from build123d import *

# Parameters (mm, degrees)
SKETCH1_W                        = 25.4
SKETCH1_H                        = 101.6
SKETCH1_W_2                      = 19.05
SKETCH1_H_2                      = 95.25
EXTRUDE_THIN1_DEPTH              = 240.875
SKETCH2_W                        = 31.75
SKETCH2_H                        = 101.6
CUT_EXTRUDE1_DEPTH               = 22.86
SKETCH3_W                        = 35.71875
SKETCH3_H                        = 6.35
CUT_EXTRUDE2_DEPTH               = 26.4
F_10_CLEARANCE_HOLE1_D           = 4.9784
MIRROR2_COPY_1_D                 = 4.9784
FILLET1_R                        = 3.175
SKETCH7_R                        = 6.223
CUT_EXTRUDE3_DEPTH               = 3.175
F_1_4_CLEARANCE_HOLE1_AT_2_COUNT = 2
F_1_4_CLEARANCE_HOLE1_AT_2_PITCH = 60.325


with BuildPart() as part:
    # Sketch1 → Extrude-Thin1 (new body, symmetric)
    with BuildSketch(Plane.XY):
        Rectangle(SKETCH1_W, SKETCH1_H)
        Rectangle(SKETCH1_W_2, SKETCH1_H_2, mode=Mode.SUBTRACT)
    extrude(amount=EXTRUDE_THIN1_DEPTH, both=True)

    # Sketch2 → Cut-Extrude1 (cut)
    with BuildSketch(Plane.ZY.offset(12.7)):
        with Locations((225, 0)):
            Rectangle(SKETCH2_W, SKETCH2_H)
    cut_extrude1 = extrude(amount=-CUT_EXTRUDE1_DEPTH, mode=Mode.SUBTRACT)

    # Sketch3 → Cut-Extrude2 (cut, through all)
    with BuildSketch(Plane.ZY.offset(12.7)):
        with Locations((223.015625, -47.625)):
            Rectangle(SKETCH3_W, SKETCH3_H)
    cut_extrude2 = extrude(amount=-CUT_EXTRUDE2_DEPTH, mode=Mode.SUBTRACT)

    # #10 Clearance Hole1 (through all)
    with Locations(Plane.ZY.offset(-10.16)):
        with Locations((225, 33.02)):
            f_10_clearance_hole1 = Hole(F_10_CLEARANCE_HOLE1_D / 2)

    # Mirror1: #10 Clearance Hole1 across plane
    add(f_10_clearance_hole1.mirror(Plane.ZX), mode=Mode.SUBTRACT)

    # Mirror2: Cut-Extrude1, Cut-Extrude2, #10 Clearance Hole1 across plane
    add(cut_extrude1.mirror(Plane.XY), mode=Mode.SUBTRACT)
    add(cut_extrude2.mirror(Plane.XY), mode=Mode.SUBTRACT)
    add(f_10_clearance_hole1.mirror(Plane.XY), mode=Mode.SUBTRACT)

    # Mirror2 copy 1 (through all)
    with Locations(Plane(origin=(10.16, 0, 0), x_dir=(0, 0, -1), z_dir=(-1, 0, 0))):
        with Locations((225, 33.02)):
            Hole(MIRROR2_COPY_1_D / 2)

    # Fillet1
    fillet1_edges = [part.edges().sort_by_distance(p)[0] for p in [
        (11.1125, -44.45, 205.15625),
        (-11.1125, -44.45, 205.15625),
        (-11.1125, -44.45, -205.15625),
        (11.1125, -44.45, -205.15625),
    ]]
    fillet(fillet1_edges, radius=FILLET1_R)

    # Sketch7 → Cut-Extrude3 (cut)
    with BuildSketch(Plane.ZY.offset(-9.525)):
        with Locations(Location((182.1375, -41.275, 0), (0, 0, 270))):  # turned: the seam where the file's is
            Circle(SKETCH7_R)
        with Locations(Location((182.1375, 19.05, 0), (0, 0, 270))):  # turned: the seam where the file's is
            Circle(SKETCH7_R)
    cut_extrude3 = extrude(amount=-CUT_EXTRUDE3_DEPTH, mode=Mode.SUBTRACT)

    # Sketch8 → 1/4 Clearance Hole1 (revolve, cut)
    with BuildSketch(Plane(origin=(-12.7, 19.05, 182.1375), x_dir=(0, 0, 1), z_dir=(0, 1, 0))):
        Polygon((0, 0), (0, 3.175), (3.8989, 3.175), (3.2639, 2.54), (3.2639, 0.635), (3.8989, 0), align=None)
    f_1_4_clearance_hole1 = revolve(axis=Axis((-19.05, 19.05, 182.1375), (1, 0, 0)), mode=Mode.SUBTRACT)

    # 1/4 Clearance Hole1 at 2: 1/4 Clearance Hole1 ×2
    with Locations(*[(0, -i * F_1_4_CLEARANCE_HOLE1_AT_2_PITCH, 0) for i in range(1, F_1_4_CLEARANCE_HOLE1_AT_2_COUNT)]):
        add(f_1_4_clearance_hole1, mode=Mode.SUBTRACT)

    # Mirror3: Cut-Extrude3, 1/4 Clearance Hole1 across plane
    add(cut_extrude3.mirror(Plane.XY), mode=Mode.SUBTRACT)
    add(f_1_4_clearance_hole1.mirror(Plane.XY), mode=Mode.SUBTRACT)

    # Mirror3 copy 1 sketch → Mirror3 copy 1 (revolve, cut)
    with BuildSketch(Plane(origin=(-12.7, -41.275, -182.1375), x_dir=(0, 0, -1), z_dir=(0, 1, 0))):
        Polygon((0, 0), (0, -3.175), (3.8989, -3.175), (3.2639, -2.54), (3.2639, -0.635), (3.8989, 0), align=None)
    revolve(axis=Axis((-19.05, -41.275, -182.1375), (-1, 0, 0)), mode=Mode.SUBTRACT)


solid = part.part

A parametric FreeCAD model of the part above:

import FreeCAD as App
import Part
import Sketcher
from FreeCAD import Vector
Q = App.Units.Quantity


def edges_at(feature, points):
    """Names of the edges that pass closest to the given points."""
    edges = feature.Shape.Edges
    near = lambda p: min(range(len(edges)), key=lambda i: edges[i].distToShape(Part.Vertex(*p))[0])
    return sorted({f"Edge{near(p) + 1}" for p in points})


def add_polygon(sketch, points):
    """Adds a closed chain of lines whose ends are joined by coincident constraints."""
    first, n = sketch.GeometryCount, len(points)
    for a, b in zip(points, points[1:] + points[:1]):
        sketch.addGeometry(Part.LineSegment(App.Vector(*a, 0), App.Vector(*b, 0)), False)
    for i in range(n):
        sketch.addConstraint(Sketcher.Constraint("Coincident", first + i, 2, first + (i + 1) % n, 1))

doc = App.newDocument("Part")
params = doc.addObject("Spreadsheet::Sheet", "Params")
for row, (alias, value) in enumerate([
    ("sketch1_width", "1 in"),
    ("sketch1_height", "4 in"),
    ("sketch1_width2", "0.75 in"),
    ("sketch1_height2", "3.75 in"),
    ("pad1_length", "481.75 mm"),
    ("sketch2_width", "4 in"),
    ("sketch2_height", "1.25 in"),
    ("pocket1_length", "0.9 in"),
    ("sketch3_width", "0.25 in"),
    ("sketch3_height", "1.40625 in"),
    ("sketch4_diameter", "0.196 in"),
    ("hole_diameter", "0.196 in"),
    ("sketch5_diameter", "0.196 in"),
    ("hole2_diameter", "0.196 in"),
    ("fillet_radius", "0.125 in"),
    ("sketch6_diameter", "0.49 in"),
    ("pocket3_length", "0.125 in"),
    ("sketch7_width", "0.125 in"),
    ("groove_angle", "360 deg"),
    ("linearpattern_pitch", "2.375 in"),
    ("sketch8_width", "0.125 in"),
    ("groove2_angle", "360 deg"),
], start=1):
    params.set(f"A{row}", alias)
    params.set(f"B{row}", "=" + value)
    params.setAlias(f"B{row}", alias)

body = doc.addObject("PartDesign::Body", "Body")

sketch1 = doc.addObject("Sketcher::SketchObject", "Sketch")
body.addObject(sketch1)
sketch1.AttachmentSupport = (doc.XY_Plane, [""])
sketch1.MapMode = "FlatFace"
add_polygon(sketch1, [(-13, 51), (-13, -51), (13, -51), (13, 51)])
add_polygon(sketch1, [(10, -48), (-10, -48), (-10, 48), (10, 48)])
sketch1.addConstraint(Sketcher.Constraint("Vertical", 0))
sketch1.addConstraint(Sketcher.Constraint("Horizontal", 1))
sketch1.addConstraint(Sketcher.Constraint("Vertical", 2))
sketch1.addConstraint(Sketcher.Constraint("Horizontal", 3))
sketch1.addConstraint(Sketcher.Constraint("Horizontal", 4))
sketch1.addConstraint(Sketcher.Constraint("Vertical", 5))
sketch1.addConstraint(Sketcher.Constraint("Horizontal", 6))
sketch1.addConstraint(Sketcher.Constraint("Vertical", 7))
sketch1.addConstraint(Sketcher.Constraint("Symmetric", 0, 2, 2, 2, -1, 1))
sketch1.addConstraint(Sketcher.Constraint("Symmetric", 4, 2, 6, 2, -1, 1))
sketch1.addConstraint(Sketcher.Constraint("DistanceX", 1, 1, 1, 2, Q("1 in")))
sketch1.addConstraint(Sketcher.Constraint("DistanceY", 0, 2, 0, 1, Q("4 in")))
sketch1.addConstraint(Sketcher.Constraint("DistanceX", 4, 2, 4, 1, Q("0.75 in")))
sketch1.addConstraint(Sketcher.Constraint("DistanceY", 5, 1, 5, 2, Q("3.75 in")))
sketch1.setExpression("Constraints[18]", "Params.sketch1_width")
sketch1.setExpression("Constraints[19]", "Params.sketch1_height")
sketch1.setExpression("Constraints[20]", "Params.sketch1_width2")
sketch1.setExpression("Constraints[21]", "Params.sketch1_height2")
pad1 = doc.addObject("PartDesign::Pad", "Pad")
body.addObject(pad1)
pad1.Profile = sketch1
pad1.setExpression("Length", "Params.pad1_length")
pad1.Midplane = True

sketch2 = doc.addObject("Sketcher::SketchObject", "Sketch001")
body.addObject(sketch2)
sketch2.AttachmentSupport = (doc.YZ_Plane, [""])
sketch2.MapMode = "FlatFace"
sketch2.AttachmentOffset = App.Placement(Vector(0, 0, -0.5 * 25.4), App.Rotation())
add_polygon(sketch2, [(51, 209), (-51, 209), (-51, 241), (51, 241)])
sketch2.addConstraint(Sketcher.Constraint("Horizontal", 0))
sketch2.addConstraint(Sketcher.Constraint("Vertical", 1))
sketch2.addConstraint(Sketcher.Constraint("Horizontal", 2))
sketch2.addConstraint(Sketcher.Constraint("Vertical", 3))
sketch2.addConstraint(Sketcher.Constraint("DistanceX", 0, 2, 0, 1, Q("4 in")))
sketch2.addConstraint(Sketcher.Constraint("DistanceX", 0, 2, -1, 1, Q("2 in")))
sketch2.addConstraint(Sketcher.Constraint("DistanceY", 1, 1, 1, 2, Q("1.25 in")))
sketch2.addConstraint(Sketcher.Constraint("DistanceY", -1, 1, 0, 2, 209.125))
sketch2.setExpression("Constraints[8]", "Params.sketch2_width")
sketch2.setExpression("Constraints[10]", "Params.sketch2_height")
pocket1 = doc.addObject("PartDesign::Pocket", "Pocket")
body.addObject(pocket1)
pocket1.Profile = sketch2
pocket1.setExpression("Length", "Params.pocket1_length")
pocket1.Reversed = True

sketch3 = doc.addObject("Sketcher::SketchObject", "Sketch002")
body.addObject(sketch3)
sketch3.AttachmentSupport = (doc.YZ_Plane, [""])
sketch3.MapMode = "FlatFace"
sketch3.AttachmentOffset = App.Placement(Vector(0, 0, -0.5 * 25.4), App.Rotation())
add_polygon(sketch3, [(-44, 205), (-51, 205), (-51, 241), (-44, 241)])
sketch3.addConstraint(Sketcher.Constraint("Horizontal", 0))
sketch3.addConstraint(Sketcher.Constraint("Vertical", 1))
sketch3.addConstraint(Sketcher.Constraint("Horizontal", 2))
sketch3.addConstraint(Sketcher.Constraint("Vertical", 3))
sketch3.addConstraint(Sketcher.Constraint("DistanceX", 0, 2, -1, 1, Q("2 in")))
sketch3.addConstraint(Sketcher.Constraint("DistanceX", 0, 2, 0, 1, Q("0.25 in")))
sketch3.addConstraint(Sketcher.Constraint("DistanceY", 1, 1, 1, 2, Q("1.40625 in")))
sketch3.addConstraint(Sketcher.Constraint("DistanceY", -1, 1, 1, 2, 240.875))
sketch3.setExpression("Constraints[9]", "Params.sketch3_width")
sketch3.setExpression("Constraints[10]", "Params.sketch3_height")
pocket2 = doc.addObject("PartDesign::Pocket", "Pocket001")
body.addObject(pocket2)
pocket2.Profile = sketch3
pocket2.Type = "ThroughAll"
pocket2.Reversed = True

sketch4 = doc.addObject("Sketcher::SketchObject", "Sketch003")
body.addObject(sketch4)
sketch4.AttachmentSupport = (doc.YZ_Plane, [""])
sketch4.MapMode = "FlatFace"
sketch4.AttachmentOffset = App.Placement(Vector(0, 0, 0.4 * 25.4), App.Rotation())
sketch4.addGeometry(Part.Circle(Vector(33, 225, 0), Vector(0, 0, 1), 2.5), False)
sketch4.addConstraint(Sketcher.Constraint("Diameter", 0, Q("0.196 in")))
sketch4.addConstraint(Sketcher.Constraint("DistanceX", -1, 1, 0, 3, Q("1.3 in")))
sketch4.addConstraint(Sketcher.Constraint("DistanceY", -1, 1, 0, 3, 225.0))
sketch4.setExpression("Constraints[0]", "Params.sketch4_diameter")
doc.recompute()
hole = doc.addObject("PartDesign::Hole", "Hole")
body.addObject(hole)
hole.Profile = sketch4
hole.ThreadType = "None"
hole.setExpression("Diameter", "Params.hole_diameter")
hole.DepthType = "ThroughAll"
hole.Reversed = True
doc.recompute()

mirrored = doc.addObject("PartDesign::Mirrored", "Mirrored")
body.addObject(mirrored)
mirrored.Originals = [hole]
mirrored.MirrorPlane = (doc.XZ_Plane, [""])
body.Tip = mirrored
doc.recompute()

mirrored2 = doc.addObject("PartDesign::Mirrored", "Mirrored001")
body.addObject(mirrored2)
mirrored2.Originals = [pocket1, pocket2, hole]
mirrored2.MirrorPlane = (doc.XY_Plane, [""])
body.Tip = mirrored2

sketch5 = doc.addObject("Sketcher::SketchObject", "Sketch004")
body.addObject(sketch5)
sketch5.AttachmentSupport = (doc.YZ_Plane, [""])
sketch5.MapMode = "FlatFace"
sketch5.AttachmentOffset = App.Placement(Vector(0, 0, 0.4 * 25.4), App.Rotation())
sketch5.addGeometry(Part.Circle(Vector(-33, -225, 0), Vector(0, 0, 1), 2.5), False)
sketch5.addConstraint(Sketcher.Constraint("Diameter", 0, Q("0.196 in")))
sketch5.addConstraint(Sketcher.Constraint("DistanceX", 0, 3, -1, 1, Q("1.3 in")))
sketch5.addConstraint(Sketcher.Constraint("DistanceY", 0, 3, -1, 1, 225.0))
sketch5.setExpression("Constraints[0]", "Params.sketch5_diameter")
doc.recompute()
hole2 = doc.addObject("PartDesign::Hole", "Hole001")
body.addObject(hole2)
hole2.Profile = sketch5
hole2.ThreadType = "None"
hole2.setExpression("Diameter", "Params.hole2_diameter")
hole2.DepthType = "ThroughAll"
hole2.Reversed = True
doc.recompute()

fillet = doc.addObject("PartDesign::Fillet", "Fillet")
body.addObject(fillet)
fillet.Base = (hole2, edges_at(hole2, [
    (11.113, -44.45, 205.156),
    (-11.113, -44.45, 205.156),
    (-11.113, -44.45, -205.156),
    (11.113, -44.45, -205.156),
]))
fillet.setExpression("Radius", "Params.fillet_radius")

sketch6 = doc.addObject("Sketcher::SketchObject", "Sketch005")
body.addObject(sketch6)
sketch6.AttachmentSupport = (doc.YZ_Plane, [""])
sketch6.MapMode = "FlatFace"
sketch6.AttachmentOffset = App.Placement(Vector(0, 0, 0.375 * 25.4), App.Rotation())
sketch6.addGeometry(Part.Circle(Vector(-41, 182, 0), Vector(0, 0, 1), 6), False)
sketch6.addGeometry(Part.Circle(Vector(19, 182, 0), Vector(0, 0, 1), 6), False)
sketch6.addConstraint(Sketcher.Constraint("Equal", 0, 1))
sketch6.addConstraint(Sketcher.Constraint("Horizontal", 0, 3, 1, 3))
sketch6.addConstraint(Sketcher.Constraint("Diameter", 0, Q("0.49 in")))
sketch6.addConstraint(Sketcher.Constraint("DistanceX", -1, 1, 1, 3, Q("0.75 in")))
sketch6.addConstraint(Sketcher.Constraint("DistanceX", 0, 3, -1, 1, Q("1.625 in")))
sketch6.addConstraint(Sketcher.Constraint("DistanceY", -1, 1, 0, 3, 182.1375))
sketch6.setExpression("Constraints[2]", "Params.sketch6_diameter")
pocket3 = doc.addObject("PartDesign::Pocket", "Pocket002")
body.addObject(pocket3)
pocket3.Profile = sketch6
pocket3.setExpression("Length", "Params.pocket3_length")
pocket3.Reversed = True

sketch7 = doc.addObject("Sketcher::SketchObject", "Sketch006")
body.addObject(sketch7)
sketch7.AttachmentSupport = (doc.XZ_Plane, [""])
sketch7.MapMode = "FlatFace"
sketch7.AttachmentOffset = App.Placement(Vector(0, 0, -0.75 * 25.4), App.Rotation())
add_polygon(sketch7, [(-9.5, 182.1), (-12.7, 182.1), (-12.7, 186), (-12.1, 185.4), (-10.2, 185.4), (-9.5, 186)])
sketch7.addGeometry(Part.LineSegment(Vector(-12.7, 182.1, 0), Vector(-9.5, 182.1, 0)), True)
sketch7.addConstraint(Sketcher.Constraint("Horizontal", 0))
sketch7.addConstraint(Sketcher.Constraint("Vertical", 1))
sketch7.addConstraint(Sketcher.Constraint("Horizontal", 3))
sketch7.addConstraint(Sketcher.Constraint("Vertical", 5))
sketch7.addConstraint(Sketcher.Constraint("Horizontal", 6))
sketch7.addConstraint(Sketcher.Constraint("Coincident", 6, 1, 0, 2))
sketch7.addConstraint(Sketcher.Constraint("Perpendicular", 2, 4))
sketch7.addConstraint(Sketcher.Constraint("Horizontal", 1, 2, 4, 2))
sketch7.addConstraint(Sketcher.Constraint("Vertical", 4, 2, 6, 2))
sketch7.addConstraint(Sketcher.Constraint("Equal", 2, 4))
sketch7.addConstraint(Sketcher.Constraint("DistanceX", 0, 2, -1, 1, Q("0.5 in")))
sketch7.addConstraint(Sketcher.Constraint("DistanceX", 3, 2, -1, 1, Q("0.4 in")))
sketch7.addConstraint(Sketcher.Constraint("DistanceX", 0, 2, 0, 1, Q("0.125 in")))
sketch7.addConstraint(Sketcher.Constraint("DistanceY", 1, 1, 1, 2, Q("0.1535 in")))
sketch7.addConstraint(Sketcher.Constraint("DistanceY", -1, 1, 0, 2, 182.1375))
sketch7.setExpression("Constraints[18]", "Params.sketch7_width")
groove = doc.addObject("PartDesign::Groove", "Groove")
body.addObject(groove)
groove.Profile = sketch7
groove.ReferenceAxis = (sketch7, ["Axis0"])
groove.setExpression("Angle", "Params.groove_angle")
doc.recompute()

linearpattern = doc.addObject("PartDesign::LinearPattern", "LinearPattern")
body.addObject(linearpattern)
linearpattern.Originals = [groove]
linearpattern.Direction = (doc.Y_Axis, [""])
linearpattern.Mode = "offset"
linearpattern.setExpression("Offset", "Params.linearpattern_pitch")
linearpattern.Occurrences = 2
linearpattern.Reversed = True
body.Tip = linearpattern
doc.recompute()

mirrored3 = doc.addObject("PartDesign::Mirrored", "Mirrored002")
body.addObject(mirrored3)
mirrored3.Originals = [pocket3, groove]
mirrored3.MirrorPlane = (doc.XY_Plane, [""])
body.Tip = mirrored3

sketch8 = doc.addObject("Sketcher::SketchObject", "Sketch007")
body.addObject(sketch8)
sketch8.AttachmentSupport = (doc.XZ_Plane, [""])
sketch8.MapMode = "FlatFace"
sketch8.AttachmentOffset = App.Placement(Vector(0, 0, 1.625 * 25.4), App.Rotation())
add_polygon(sketch8, [(-12.7, -182.1), (-9.5, -182.1), (-9.5, -186), (-10.2, -185.4), (-12.1, -185.4), (-12.7, -186)])
sketch8.addGeometry(Part.LineSegment(Vector(-9.5, -182.1, 0), Vector(-12.7, -182.1, 0)), True)
sketch8.addConstraint(Sketcher.Constraint("Horizontal", 0))
sketch8.addConstraint(Sketcher.Constraint("Vertical", 1))
sketch8.addConstraint(Sketcher.Constraint("Horizontal", 3))
sketch8.addConstraint(Sketcher.Constraint("Vertical", 5))
sketch8.addConstraint(Sketcher.Constraint("Horizontal", 6))
sketch8.addConstraint(Sketcher.Constraint("Coincident", 6, 1, 0, 2))
sketch8.addConstraint(Sketcher.Constraint("Perpendicular", 2, 4))
sketch8.addConstraint(Sketcher.Constraint("Horizontal", 1, 2, 4, 2))
sketch8.addConstraint(Sketcher.Constraint("Vertical", 4, 2, 6, 2))
sketch8.addConstraint(Sketcher.Constraint("Equal", 2, 4))
sketch8.addConstraint(Sketcher.Constraint("DistanceX", 2, 2, -1, 1, Q("0.4 in")))
sketch8.addConstraint(Sketcher.Constraint("DistanceX", 4, 2, -1, 1, Q("0.5 in")))
sketch8.addConstraint(Sketcher.Constraint("DistanceX", 0, 1, 0, 2, Q("0.125 in")))
sketch8.addConstraint(Sketcher.Constraint("DistanceY", 1, 2, 1, 1, Q("0.1535 in")))
sketch8.addConstraint(Sketcher.Constraint("DistanceY", 0, 2, -1, 1, 182.1375))
sketch8.setExpression("Constraints[18]", "Params.sketch8_width")
groove2 = doc.addObject("PartDesign::Groove", "Groove001")
body.addObject(groove2)
groove2.Profile = sketch8
groove2.ReferenceAxis = (sketch8, ["Axis0"])
groove2.setExpression("Angle", "Params.groove2_angle")

doc.recompute()
